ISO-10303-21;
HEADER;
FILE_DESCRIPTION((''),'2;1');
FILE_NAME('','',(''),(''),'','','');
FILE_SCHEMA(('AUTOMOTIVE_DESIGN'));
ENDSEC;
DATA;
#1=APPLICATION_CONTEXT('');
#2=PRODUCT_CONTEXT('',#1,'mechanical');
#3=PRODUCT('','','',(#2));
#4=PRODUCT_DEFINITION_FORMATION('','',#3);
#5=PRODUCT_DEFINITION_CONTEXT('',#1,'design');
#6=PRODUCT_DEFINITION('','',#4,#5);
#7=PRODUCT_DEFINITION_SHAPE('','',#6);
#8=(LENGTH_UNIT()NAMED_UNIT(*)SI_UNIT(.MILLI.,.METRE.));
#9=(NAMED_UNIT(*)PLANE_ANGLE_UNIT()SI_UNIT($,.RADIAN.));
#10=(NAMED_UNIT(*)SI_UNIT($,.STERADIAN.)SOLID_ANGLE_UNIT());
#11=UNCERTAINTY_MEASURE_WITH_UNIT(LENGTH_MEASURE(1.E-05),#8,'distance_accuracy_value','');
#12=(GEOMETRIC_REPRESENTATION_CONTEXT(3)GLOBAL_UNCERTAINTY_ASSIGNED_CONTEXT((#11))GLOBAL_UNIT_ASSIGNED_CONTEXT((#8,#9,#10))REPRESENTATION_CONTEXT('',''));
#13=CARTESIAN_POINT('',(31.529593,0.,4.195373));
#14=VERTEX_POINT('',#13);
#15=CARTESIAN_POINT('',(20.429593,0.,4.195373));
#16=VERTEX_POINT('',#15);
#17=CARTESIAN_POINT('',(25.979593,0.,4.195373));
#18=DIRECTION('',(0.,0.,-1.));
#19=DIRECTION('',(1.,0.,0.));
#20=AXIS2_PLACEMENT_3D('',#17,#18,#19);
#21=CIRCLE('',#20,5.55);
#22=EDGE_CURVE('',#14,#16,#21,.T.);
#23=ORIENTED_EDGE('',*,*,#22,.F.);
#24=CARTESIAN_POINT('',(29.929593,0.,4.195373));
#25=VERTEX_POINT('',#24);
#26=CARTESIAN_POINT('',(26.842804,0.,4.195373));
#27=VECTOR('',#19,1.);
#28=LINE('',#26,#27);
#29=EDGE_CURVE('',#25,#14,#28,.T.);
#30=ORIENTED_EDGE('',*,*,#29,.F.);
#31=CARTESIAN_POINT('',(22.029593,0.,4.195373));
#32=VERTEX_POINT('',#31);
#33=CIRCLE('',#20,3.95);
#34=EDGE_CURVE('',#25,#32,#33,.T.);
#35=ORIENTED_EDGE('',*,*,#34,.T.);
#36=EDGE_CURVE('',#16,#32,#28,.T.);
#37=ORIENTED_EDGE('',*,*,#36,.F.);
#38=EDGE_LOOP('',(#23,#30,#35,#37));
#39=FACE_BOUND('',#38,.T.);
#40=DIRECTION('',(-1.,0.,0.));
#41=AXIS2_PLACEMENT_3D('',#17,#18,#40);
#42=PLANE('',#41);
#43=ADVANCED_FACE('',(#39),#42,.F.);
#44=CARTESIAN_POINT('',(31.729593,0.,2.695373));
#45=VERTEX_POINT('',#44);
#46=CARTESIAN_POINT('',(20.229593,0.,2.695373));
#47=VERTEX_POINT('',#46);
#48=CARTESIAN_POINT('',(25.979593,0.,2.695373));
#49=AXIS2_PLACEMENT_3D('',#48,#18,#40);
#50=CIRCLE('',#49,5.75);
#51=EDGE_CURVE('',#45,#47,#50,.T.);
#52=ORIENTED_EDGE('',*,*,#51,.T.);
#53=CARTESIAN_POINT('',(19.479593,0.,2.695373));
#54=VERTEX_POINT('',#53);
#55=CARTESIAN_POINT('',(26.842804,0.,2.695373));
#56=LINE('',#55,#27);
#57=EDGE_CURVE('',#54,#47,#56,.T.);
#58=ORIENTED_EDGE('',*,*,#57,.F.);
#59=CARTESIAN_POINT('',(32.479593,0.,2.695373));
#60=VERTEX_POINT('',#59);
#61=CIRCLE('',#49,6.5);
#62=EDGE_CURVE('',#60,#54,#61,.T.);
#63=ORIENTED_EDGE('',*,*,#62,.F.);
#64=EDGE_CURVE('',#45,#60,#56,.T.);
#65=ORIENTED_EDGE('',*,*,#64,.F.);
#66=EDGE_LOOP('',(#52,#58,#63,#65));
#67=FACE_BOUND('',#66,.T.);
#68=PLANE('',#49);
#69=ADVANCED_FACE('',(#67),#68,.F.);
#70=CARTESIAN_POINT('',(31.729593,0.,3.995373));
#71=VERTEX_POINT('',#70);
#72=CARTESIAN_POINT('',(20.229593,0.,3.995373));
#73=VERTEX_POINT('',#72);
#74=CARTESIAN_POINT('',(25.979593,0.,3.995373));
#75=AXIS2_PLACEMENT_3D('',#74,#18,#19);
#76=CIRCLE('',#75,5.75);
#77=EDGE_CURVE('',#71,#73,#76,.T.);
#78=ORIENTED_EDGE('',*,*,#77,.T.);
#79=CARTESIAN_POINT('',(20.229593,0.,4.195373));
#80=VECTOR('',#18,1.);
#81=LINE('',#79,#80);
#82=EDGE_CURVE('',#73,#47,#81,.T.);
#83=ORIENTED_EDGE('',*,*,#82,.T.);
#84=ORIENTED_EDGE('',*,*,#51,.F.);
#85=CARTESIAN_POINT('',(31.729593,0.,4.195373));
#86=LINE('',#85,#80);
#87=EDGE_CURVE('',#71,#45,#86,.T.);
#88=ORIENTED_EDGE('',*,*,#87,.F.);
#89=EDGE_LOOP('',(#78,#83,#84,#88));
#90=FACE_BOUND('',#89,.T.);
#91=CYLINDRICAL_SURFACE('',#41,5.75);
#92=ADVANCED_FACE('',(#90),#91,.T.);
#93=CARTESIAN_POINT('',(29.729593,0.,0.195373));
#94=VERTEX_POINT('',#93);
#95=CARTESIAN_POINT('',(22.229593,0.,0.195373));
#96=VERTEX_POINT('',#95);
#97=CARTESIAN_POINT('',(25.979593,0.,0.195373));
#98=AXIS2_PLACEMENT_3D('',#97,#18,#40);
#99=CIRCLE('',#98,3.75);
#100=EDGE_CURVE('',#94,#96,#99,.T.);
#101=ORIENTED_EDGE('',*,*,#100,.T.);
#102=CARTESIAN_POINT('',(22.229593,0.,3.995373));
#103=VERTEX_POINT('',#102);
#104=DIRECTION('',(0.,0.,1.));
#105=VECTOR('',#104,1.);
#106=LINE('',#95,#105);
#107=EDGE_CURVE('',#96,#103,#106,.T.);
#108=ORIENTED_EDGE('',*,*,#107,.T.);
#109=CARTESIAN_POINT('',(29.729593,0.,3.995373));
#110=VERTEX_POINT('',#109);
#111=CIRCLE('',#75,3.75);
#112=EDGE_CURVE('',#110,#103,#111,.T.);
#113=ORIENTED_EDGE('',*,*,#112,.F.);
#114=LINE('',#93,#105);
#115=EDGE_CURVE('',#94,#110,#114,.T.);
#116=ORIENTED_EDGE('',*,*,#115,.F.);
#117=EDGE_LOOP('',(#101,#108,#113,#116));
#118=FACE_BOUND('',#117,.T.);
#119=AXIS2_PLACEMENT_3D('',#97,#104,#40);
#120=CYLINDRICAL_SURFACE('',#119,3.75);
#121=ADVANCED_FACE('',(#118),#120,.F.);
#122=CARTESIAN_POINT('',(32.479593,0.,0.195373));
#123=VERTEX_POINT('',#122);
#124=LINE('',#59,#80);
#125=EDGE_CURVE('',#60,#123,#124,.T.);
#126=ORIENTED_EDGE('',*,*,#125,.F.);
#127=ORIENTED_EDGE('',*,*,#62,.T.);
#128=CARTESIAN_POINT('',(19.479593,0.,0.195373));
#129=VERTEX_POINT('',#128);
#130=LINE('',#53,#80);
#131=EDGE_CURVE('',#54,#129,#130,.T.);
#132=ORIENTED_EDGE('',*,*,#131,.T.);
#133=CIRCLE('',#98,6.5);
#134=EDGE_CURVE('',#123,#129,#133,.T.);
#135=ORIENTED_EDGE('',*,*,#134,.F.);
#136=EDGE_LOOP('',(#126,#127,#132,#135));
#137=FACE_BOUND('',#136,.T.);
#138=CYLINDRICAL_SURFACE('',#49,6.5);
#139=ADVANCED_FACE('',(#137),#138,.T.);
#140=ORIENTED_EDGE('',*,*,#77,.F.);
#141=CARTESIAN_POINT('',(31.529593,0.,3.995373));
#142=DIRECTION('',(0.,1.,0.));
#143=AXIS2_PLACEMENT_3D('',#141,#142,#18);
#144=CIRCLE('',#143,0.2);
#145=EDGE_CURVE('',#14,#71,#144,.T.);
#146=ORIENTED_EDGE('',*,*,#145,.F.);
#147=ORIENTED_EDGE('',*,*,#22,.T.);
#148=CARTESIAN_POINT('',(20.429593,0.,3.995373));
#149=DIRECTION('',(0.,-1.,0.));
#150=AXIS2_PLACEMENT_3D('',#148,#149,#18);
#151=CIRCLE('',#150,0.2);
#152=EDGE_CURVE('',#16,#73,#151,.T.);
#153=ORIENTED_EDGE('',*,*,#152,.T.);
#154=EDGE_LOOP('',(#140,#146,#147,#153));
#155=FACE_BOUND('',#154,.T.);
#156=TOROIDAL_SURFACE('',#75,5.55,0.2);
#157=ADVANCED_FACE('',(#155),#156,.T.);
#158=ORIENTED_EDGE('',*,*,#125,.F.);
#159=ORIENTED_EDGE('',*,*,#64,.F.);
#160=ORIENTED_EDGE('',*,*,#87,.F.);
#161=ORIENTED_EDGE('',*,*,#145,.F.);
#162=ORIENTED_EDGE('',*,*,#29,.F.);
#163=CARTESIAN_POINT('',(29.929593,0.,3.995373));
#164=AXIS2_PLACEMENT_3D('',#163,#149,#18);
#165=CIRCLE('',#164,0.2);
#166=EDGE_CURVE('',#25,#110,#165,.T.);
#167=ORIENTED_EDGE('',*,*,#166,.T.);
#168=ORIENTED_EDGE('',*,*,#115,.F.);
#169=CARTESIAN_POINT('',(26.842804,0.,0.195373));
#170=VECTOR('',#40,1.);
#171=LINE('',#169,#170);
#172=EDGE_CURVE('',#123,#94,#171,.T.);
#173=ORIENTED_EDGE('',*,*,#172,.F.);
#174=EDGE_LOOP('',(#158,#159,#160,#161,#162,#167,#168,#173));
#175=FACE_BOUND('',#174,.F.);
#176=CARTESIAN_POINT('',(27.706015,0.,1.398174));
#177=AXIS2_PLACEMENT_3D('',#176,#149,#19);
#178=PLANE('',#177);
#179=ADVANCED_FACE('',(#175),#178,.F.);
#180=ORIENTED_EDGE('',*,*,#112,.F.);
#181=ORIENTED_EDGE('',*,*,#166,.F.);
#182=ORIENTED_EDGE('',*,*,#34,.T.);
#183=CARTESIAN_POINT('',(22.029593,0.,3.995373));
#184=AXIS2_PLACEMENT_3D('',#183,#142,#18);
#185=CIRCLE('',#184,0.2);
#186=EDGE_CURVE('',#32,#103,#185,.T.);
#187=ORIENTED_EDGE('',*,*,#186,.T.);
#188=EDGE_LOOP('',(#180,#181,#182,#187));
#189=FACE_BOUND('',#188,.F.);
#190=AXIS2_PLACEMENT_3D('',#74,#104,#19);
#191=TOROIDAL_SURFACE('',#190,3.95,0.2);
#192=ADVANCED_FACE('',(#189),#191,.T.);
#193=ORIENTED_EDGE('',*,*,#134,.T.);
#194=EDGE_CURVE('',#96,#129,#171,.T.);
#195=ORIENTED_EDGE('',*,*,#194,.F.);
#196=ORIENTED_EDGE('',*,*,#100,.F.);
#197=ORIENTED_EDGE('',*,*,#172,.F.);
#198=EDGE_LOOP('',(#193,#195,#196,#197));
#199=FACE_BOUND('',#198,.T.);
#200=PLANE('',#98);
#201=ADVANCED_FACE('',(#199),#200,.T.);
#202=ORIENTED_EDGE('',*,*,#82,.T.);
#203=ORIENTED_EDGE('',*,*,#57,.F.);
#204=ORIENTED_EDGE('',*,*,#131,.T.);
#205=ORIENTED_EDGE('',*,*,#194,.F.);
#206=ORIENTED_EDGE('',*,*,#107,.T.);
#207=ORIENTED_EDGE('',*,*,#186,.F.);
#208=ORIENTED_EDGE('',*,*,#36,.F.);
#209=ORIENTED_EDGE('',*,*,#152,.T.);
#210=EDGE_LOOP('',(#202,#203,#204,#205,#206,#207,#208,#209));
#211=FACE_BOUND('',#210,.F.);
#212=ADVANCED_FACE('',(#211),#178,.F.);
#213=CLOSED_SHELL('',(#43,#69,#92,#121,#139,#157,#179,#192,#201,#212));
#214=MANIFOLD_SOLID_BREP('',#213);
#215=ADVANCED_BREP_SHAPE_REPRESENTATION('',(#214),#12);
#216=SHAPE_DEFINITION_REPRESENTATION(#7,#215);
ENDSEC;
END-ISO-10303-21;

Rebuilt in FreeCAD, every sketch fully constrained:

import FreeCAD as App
import Part
import Sketcher
from FreeCAD import Vector
Q = App.Units.Quantity


def edges_at(feature, points):
    """Names of the edges that pass closest to the given points."""
    edges = feature.Shape.Edges
    near = lambda p: min(range(len(edges)), key=lambda i: edges[i].distToShape(Part.Vertex(*p))[0])
    return sorted({f"Edge{near(p) + 1}" for p in points})

doc = App.newDocument("Part")
body = doc.addObject("PartDesign::Body", "Body")

# Sketch on XZ plane
sketch1 = doc.addObject("Sketcher::SketchObject", "Sketch")
body.addObject(sketch1)
sketch1.AttachmentSupport = (doc.XZ_Plane, [""])
sketch1.MapMode = "FlatFace"
sketch1.addGeometry([
    Part.LineSegment(Vector(22.2, 4.2, 0), Vector(20.2, 4.2, 0)),  # 0
    Part.LineSegment(Vector(20.2, 4.2, 0), Vector(20.2, 2.7, 0)),  # 1
    Part.LineSegment(Vector(20.2, 2.7, 0), Vector(19.5, 2.7, 0)),  # 2
    Part.LineSegment(Vector(19.5, 2.7, 0), Vector(19.5, 0.2, 0)),  # 3
    Part.LineSegment(Vector(19.5, 0.2, 0), Vector(22.2, 0.2, 0)),  # 4
    Part.LineSegment(Vector(22.2, 0.2, 0), Vector(22.2, 4.2, 0)),  # 5
], False)
sketch1.addGeometry(Part.LineSegment(Vector(26, 4.2, 0), Vector(26, 0.2, 0)), True)  # axis
sketch1.addConstraint([
    Sketcher.Constraint("Coincident", 0, 2, 1, 1),
    Sketcher.Constraint("Coincident", 1, 2, 2, 1),
    Sketcher.Constraint("Coincident", 2, 2, 3, 1),
    Sketcher.Constraint("Coincident", 3, 2, 4, 1),
    Sketcher.Constraint("Coincident", 4, 2, 5, 1),
    Sketcher.Constraint("Coincident", 5, 2, 0, 1),
    Sketcher.Constraint("Horizontal", 0),
    Sketcher.Constraint("Vertical", 1),
    Sketcher.Constraint("Horizontal", 2),
    Sketcher.Constraint("Vertical", 3),
    Sketcher.Constraint("Horizontal", 4),
    Sketcher.Constraint("Vertical", 5),
    Sketcher.Constraint("Vertical", 6),
    Sketcher.Constraint("Horizontal", 5, 2, 6, 1),
    Sketcher.Constraint("Horizontal", 4, 2, 6, 2),
    Sketcher.Constraint("DistanceX", 0, 2, 0, 1, Q("2 mm")),
    Sketcher.Constraint("DistanceY", 5, 1, 5, 2, Q("4 mm")),
    Sketcher.Constraint("DistanceY", 1, 2, 1, 1, Q("1.5 mm")),
    Sketcher.Constraint("DistanceX", 2, 2, 2, 1, Q("0.75 mm")),
    Sketcher.Constraint("DistanceX", 2, 2, 6, 1, Q("6.5 mm")),
    Sketcher.Constraint("DistanceX", -1, 1, 0, 2, Q("20.229593 mm")),
    Sketcher.Constraint("DistanceY", -1, 1, 0, 2, Q("4.195373 mm")),
])
revolution = doc.addObject("PartDesign::Revolution", "Revolution")
body.addObject(revolution)
revolution.Profile = sketch1
revolution.ReferenceAxis = (sketch1, ["Axis0"])
revolution.Angle = 360

# Sketch on XZ plane
sketch2 = doc.addObject("Sketcher::SketchObject", "Sketch001")
body.addObject(sketch2)
sketch2.AttachmentSupport = (doc.XZ_Plane, [""])
sketch2.MapMode = "FlatFace"
sketch2.addGeometry([
    Part.LineSegment(Vector(12, 18, 0), Vector(12, -15, 0)),
    Part.LineSegment(Vector(12, -15, 0), Vector(44, -15, 0)),
    Part.LineSegment(Vector(44, -15, 0), Vector(44, 18, 0)),
    Part.LineSegment(Vector(44, 18, 0), Vector(12, 18, 0)),
], False)
sketch2.addConstraint([
    Sketcher.Constraint("Coincident", 0, 2, 1, 1),
    Sketcher.Constraint("Coincident", 1, 2, 2, 1),
    Sketcher.Constraint("Coincident", 2, 2, 3, 1),
    Sketcher.Constraint("Coincident", 3, 2, 0, 1),
    Sketcher.Constraint("Vertical", 0),
    Sketcher.Constraint("Horizontal", 1),
    Sketcher.Constraint("Vertical", 2),
    Sketcher.Constraint("Horizontal", 3),
    Sketcher.Constraint("DistanceY", 0, 2, 0, 1, Q("32.26484 mm")),
    Sketcher.Constraint("DistanceX", 1, 1, 1, 2, Q("32.401555 mm")),
    Sketcher.Constraint("DistanceX", -1, 1, 0, 2, Q("11.505238 mm")),
    Sketcher.Constraint("DistanceY", 0, 2, -1, 1, Q("14.734246 mm")),
])
pocket1 = doc.addObject("PartDesign::Pocket", "Pocket")
body.addObject(pocket1)
pocket1.Profile = sketch2
pocket1.Length = 25
doc.recompute()

fillet = doc.addObject("PartDesign::Fillet", "Fillet")
body.addObject(fillet)
fillet.Base = (pocket1, edges_at(pocket1, [(25.98, -5.75, 4.195), (25.98, -3.75, 4.195)]))
fillet.Radius = 0.2

doc.recompute()
